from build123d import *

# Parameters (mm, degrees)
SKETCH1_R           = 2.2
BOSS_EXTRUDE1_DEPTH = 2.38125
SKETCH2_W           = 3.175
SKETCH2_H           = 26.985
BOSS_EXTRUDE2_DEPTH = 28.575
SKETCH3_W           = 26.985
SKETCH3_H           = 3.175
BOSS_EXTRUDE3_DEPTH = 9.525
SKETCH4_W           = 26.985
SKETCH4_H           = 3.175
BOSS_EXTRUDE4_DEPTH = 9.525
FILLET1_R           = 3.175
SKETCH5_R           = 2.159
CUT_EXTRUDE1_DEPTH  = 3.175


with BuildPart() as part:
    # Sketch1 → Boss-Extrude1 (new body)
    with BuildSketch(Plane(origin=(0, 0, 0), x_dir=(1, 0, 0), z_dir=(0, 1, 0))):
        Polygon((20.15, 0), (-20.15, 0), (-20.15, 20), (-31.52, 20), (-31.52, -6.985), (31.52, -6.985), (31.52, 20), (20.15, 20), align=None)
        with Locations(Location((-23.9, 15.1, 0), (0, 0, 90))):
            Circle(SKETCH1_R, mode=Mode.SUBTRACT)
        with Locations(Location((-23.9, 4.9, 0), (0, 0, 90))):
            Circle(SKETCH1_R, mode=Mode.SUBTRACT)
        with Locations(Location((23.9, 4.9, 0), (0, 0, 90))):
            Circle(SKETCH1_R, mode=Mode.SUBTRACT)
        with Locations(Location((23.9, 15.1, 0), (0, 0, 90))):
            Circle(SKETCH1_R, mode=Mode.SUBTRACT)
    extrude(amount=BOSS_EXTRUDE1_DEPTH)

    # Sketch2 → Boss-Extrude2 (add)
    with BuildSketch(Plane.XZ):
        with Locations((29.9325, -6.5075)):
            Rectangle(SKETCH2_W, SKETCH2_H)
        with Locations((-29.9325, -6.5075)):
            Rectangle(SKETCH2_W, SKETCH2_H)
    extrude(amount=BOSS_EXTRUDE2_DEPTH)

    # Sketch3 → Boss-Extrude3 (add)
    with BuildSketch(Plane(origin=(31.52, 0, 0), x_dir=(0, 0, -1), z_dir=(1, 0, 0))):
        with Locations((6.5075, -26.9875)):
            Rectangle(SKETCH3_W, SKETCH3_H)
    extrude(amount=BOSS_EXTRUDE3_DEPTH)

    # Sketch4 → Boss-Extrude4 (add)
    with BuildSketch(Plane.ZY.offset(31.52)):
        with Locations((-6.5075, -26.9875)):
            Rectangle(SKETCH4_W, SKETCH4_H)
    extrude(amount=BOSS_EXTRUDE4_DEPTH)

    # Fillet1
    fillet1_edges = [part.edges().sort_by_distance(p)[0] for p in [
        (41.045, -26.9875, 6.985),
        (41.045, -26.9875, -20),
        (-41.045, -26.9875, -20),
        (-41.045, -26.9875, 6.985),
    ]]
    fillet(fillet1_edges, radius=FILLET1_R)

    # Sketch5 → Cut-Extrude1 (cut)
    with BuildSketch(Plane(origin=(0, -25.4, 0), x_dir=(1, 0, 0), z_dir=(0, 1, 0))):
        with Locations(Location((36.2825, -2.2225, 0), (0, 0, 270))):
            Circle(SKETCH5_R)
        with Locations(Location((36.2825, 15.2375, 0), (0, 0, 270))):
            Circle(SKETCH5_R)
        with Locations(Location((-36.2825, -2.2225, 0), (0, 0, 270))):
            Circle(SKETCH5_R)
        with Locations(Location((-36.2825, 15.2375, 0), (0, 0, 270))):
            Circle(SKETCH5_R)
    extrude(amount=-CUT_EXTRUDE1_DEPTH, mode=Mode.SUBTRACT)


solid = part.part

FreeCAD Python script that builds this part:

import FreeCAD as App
import Part
import Sketcher

V = App.Vector
Q = App.Units.Quantity


def edges_at(feature, points):
    """Names of the edges that pass closest to the given points."""
    edges = feature.Shape.Edges
    near = lambda p: min(range(len(edges)), key=lambda i: edges[i].distToShape(Part.Vertex(*p))[0])
    return sorted({f"Edge{near(p) + 1}" for p in points})

doc = App.newDocument("Part")
body = doc.addObject("PartDesign::Body", "Body")

sketch1 = body.newObject("Sketcher::SketchObject", "Sketch")
sketch1.AttachmentSupport = (doc.getObject("XZ_Plane"), [""])
sketch1.MapMode = "FlatFace"
sketch1.addGeometry(Part.LineSegment(V(20.15, 0, 0), V(-20.15, 0, 0)), False)
sketch1.addGeometry(Part.LineSegment(V(-20.15, 0, 0), V(-20.15, -20, 0)), False)
sketch1.addGeometry(Part.LineSegment(V(-20.15, -20, 0), V(-31.52, -20, 0)), False)
sketch1.addGeometry(Part.LineSegment(V(-31.52, -20, 0), V(-31.52, 6.985, 0)), False)
sketch1.addGeometry(Part.LineSegment(V(-31.52, 6.985, 0), V(31.52, 6.985, 0)), False)
sketch1.addGeometry(Part.LineSegment(V(31.52, 6.985, 0), V(31.52, -20, 0)), False)
sketch1.addGeometry(Part.LineSegment(V(31.52, -20, 0), V(20.15, -20, 0)), False)
sketch1.addGeometry(Part.LineSegment(V(20.15, -20, 0), V(20.15, 0, 0)), False)
sketch1.addGeometry(Part.Circle(V(-23.9, -4.9, 0), V(0, 0, 1), 2.2), False)
sketch1.addGeometry(Part.Circle(V(23.9, -4.9, 0), V(0, 0, 1), 2.2), False)
sketch1.addGeometry(Part.Circle(V(-23.9, -15.1, 0), V(0, 0, 1), 2.2), False)
sketch1.addGeometry(Part.Circle(V(23.9, -15.1, 0), V(0, 0, 1), 2.2), False)
sketch1.addConstraint(Sketcher.Constraint("Coincident", 0, 2, 1, 1))
sketch1.addConstraint(Sketcher.Constraint("Coincident", 1, 2, 2, 1))
sketch1.addConstraint(Sketcher.Constraint("Coincident", 2, 2, 3, 1))
sketch1.addConstraint(Sketcher.Constraint("Coincident", 3, 2, 4, 1))
sketch1.addConstraint(Sketcher.Constraint("Coincident", 4, 2, 5, 1))
sketch1.addConstraint(Sketcher.Constraint("Coincident", 5, 2, 6, 1))
sketch1.addConstraint(Sketcher.Constraint("Coincident", 6, 2, 7, 1))
sketch1.addConstraint(Sketcher.Constraint("Coincident", 7, 2, 0, 1))
sketch1.addConstraint(Sketcher.Constraint("Horizontal", 0))
sketch1.addConstraint(Sketcher.Constraint("Vertical", 1))
sketch1.addConstraint(Sketcher.Constraint("Horizontal", 2))
sketch1.addConstraint(Sketcher.Constraint("Vertical", 3))
sketch1.addConstraint(Sketcher.Constraint("Horizontal", 4))
sketch1.addConstraint(Sketcher.Constraint("Vertical", 5))
sketch1.addConstraint(Sketcher.Constraint("Horizontal", 6))
sketch1.addConstraint(Sketcher.Constraint("Vertical", 7))
sketch1.addConstraint(Sketcher.Constraint("Equal", 8, 9))
sketch1.addConstraint(Sketcher.Constraint("Equal", 9, 10))
sketch1.addConstraint(Sketcher.Constraint("Equal", 10, 11))
sketch1.addConstraint(Sketcher.Constraint("Symmetric", 0, 2, 7, 2, -1, 1))
sketch1.addConstraint(Sketcher.Constraint("Symmetric", 8, 3, 9, 3, -2))
sketch1.addConstraint(Sketcher.Constraint("Symmetric", 10, 3, 11, 3, -2))
sketch1.addConstraint(Sketcher.Constraint("Symmetric", 2, 2, 5, 2, -2))
sketch1.addConstraint(Sketcher.Constraint("Vertical", 8, 3, 10, 3))
sketch1.addConstraint(Sketcher.Constraint("DistanceX", 2, 2, 10, 3, Q("0.3 in")))
sketch1.addConstraint(Sketcher.Constraint("Diameter", 8, 4.4))
sketch1.addConstraint(Sketcher.Constraint("DistanceY", -1, 1, 3, 2, Q("0.275 in")))
sketch1.addConstraint(Sketcher.Constraint("DistanceX", 0, 2, 0, 1, 40.3))
sketch1.addConstraint(Sketcher.Constraint("DistanceX", 2, 2, 2, 1, 11.37))
sketch1.addConstraint(Sketcher.Constraint("DistanceY", 1, 2, 1, 1, 20.0))
sketch1.addConstraint(Sketcher.Constraint("DistanceY", 8, 3, -1, 1, 4.9))
sketch1.addConstraint(Sketcher.Constraint("DistanceY", 10, 3, -1, 1, 15.1))
pad1 = body.newObject("PartDesign::Pad", "Pad")
pad1.Profile = sketch1
pad1.Length = Q("0.09375 in")
pad1.Reversed = True

sketch2 = body.newObject("Sketcher::SketchObject", "Sketch001")
sketch2.AttachmentSupport = (doc.getObject("XZ_Plane"), [""])
sketch2.MapMode = "FlatFace"
sketch2.addGeometry(Part.LineSegment(V(28.345, 6.985, 0), V(28.345, -20, 0)), False)
sketch2.addGeometry(Part.LineSegment(V(28.345, -20, 0), V(31.52, -20, 0)), False)
sketch2.addGeometry(Part.LineSegment(V(31.52, -20, 0), V(31.52, 6.985, 0)), False)
sketch2.addGeometry(Part.LineSegment(V(31.52, 6.985, 0), V(28.345, 6.985, 0)), False)
sketch2.addGeometry(Part.LineSegment(V(-31.52, 6.985, 0), V(-31.52, -20, 0)), False)
sketch2.addGeometry(Part.LineSegment(V(-31.52, -20, 0), V(-28.345, -20, 0)), False)
sketch2.addGeometry(Part.LineSegment(V(-28.345, -20, 0), V(-28.345, 6.985, 0)), False)
sketch2.addGeometry(Part.LineSegment(V(-28.345, 6.985, 0), V(-31.52, 6.985, 0)), False)
sketch2.addConstraint(Sketcher.Constraint("Coincident", 0, 2, 1, 1))
sketch2.addConstraint(Sketcher.Constraint("Coincident", 1, 2, 2, 1))
sketch2.addConstraint(Sketcher.Constraint("Coincident", 2, 2, 3, 1))
sketch2.addConstraint(Sketcher.Constraint("Coincident", 3, 2, 0, 1))
sketch2.addConstraint(Sketcher.Constraint("Coincident", 4, 2, 5, 1))
sketch2.addConstraint(Sketcher.Constraint("Coincident", 5, 2, 6, 1))
sketch2.addConstraint(Sketcher.Constraint("Coincident", 6, 2, 7, 1))
sketch2.addConstraint(Sketcher.Constraint("Coincident", 7, 2, 4, 1))
sketch2.addConstraint(Sketcher.Constraint("Vertical", 0))
sketch2.addConstraint(Sketcher.Constraint("Horizontal", 1))
sketch2.addConstraint(Sketcher.Constraint("Vertical", 2))
sketch2.addConstraint(Sketcher.Constraint("Horizontal", 3))
sketch2.addConstraint(Sketcher.Constraint("Vertical", 4))
sketch2.addConstraint(Sketcher.Constraint("Horizontal", 5))
sketch2.addConstraint(Sketcher.Constraint("Vertical", 6))
sketch2.addConstraint(Sketcher.Constraint("Horizontal", 7))
sketch2.addConstraint(Sketcher.Constraint("Symmetric", 1, 2, 4, 2, -2))
sketch2.addConstraint(Sketcher.Constraint("Symmetric", 3, 2, 6, 2, -2))
sketch2.addConstraint(Sketcher.Constraint("DistanceX", 1, 1, 1, 2, Q("0.125 in")))
sketch2.addConstraint(Sketcher.Constraint("DistanceY", -1, 1, 2, 2, Q("0.275 in")))
sketch2.addConstraint(Sketcher.Constraint("DistanceY", 0, 2, 0, 1, 26.985))
sketch2.addConstraint(Sketcher.Constraint("DistanceX", -1, 1, 0, 2, 28.345))
pad2 = body.newObject("PartDesign::Pad", "Pad001")
pad2.Profile = sketch2
pad2.Length = Q("1.125 in")

sketch3 = body.newObject("Sketcher::SketchObject", "Sketch002")
sketch3.AttachmentSupport = (doc.getObject("YZ_Plane"), [""])
sketch3.MapMode = "FlatFace"
sketch3.AttachmentOffset = App.Placement(V(0, 0, 31.52), App.Rotation())
sketch3.addGeometry(Part.LineSegment(V(-25.4, 6.985, 0), V(-28.575, 6.985, 0)), False)
sketch3.addGeometry(Part.LineSegment(V(-28.575, 6.985, 0), V(-28.575, -20, 0)), False)
sketch3.addGeometry(Part.LineSegment(V(-28.575, -20, 0), V(-25.4, -20, 0)), False)
sketch3.addGeometry(Part.LineSegment(V(-25.4, -20, 0), V(-25.4, 6.985, 0)), False)
sketch3.addConstraint(Sketcher.Constraint("Coincident", 0, 2, 1, 1))
sketch3.addConstraint(Sketcher.Constraint("Coincident", 1, 2, 2, 1))
sketch3.addConstraint(Sketcher.Constraint("Coincident", 2, 2, 3, 1))
sketch3.addConstraint(Sketcher.Constraint("Coincident", 3, 2, 0, 1))
sketch3.addConstraint(Sketcher.Constraint("Horizontal", 0))
sketch3.addConstraint(Sketcher.Constraint("Vertical", 1))
sketch3.addConstraint(Sketcher.Constraint("Horizontal", 2))
sketch3.addConstraint(Sketcher.Constraint("Vertical", 3))
sketch3.addConstraint(Sketcher.Constraint("DistanceX", 2, 2, -1, 1, Q("1 in")))
sketch3.addConstraint(Sketcher.Constraint("DistanceX", 0, 2, 0, 1, Q("0.125 in")))
sketch3.addConstraint(Sketcher.Constraint("DistanceY", -1, 1, 0, 2, Q("0.275 in")))
sketch3.addConstraint(Sketcher.Constraint("DistanceY", 1, 2, 1, 1, 26.985))
pad3 = body.newObject("PartDesign::Pad", "Pad002")
pad3.Profile = sketch3
pad3.Length = Q("0.375 in")

sketch4 = body.newObject("Sketcher::SketchObject", "Sketch003")
sketch4.AttachmentSupport = (doc.getObject("YZ_Plane"), [""])
sketch4.MapMode = "FlatFace"
sketch4.AttachmentOffset = App.Placement(V(0, 0, -31.52), App.Rotation())
sketch4.addGeometry(Part.LineSegment(V(-25.4, -20, 0), V(-28.575, -20, 0)), False)
sketch4.addGeometry(Part.LineSegment(V(-28.575, -20, 0), V(-28.575, 6.985, 0)), False)
sketch4.addGeometry(Part.LineSegment(V(-28.575, 6.985, 0), V(-25.4, 6.985, 0)), False)
sketch4.addGeometry(Part.LineSegment(V(-25.4, 6.985, 0), V(-25.4, -20, 0)), False)
sketch4.addConstraint(Sketcher.Constraint("Coincident", 0, 2, 1, 1))
sketch4.addConstraint(Sketcher.Constraint("Coincident", 1, 2, 2, 1))
sketch4.addConstraint(Sketcher.Constraint("Coincident", 2, 2, 3, 1))
sketch4.addConstraint(Sketcher.Constraint("Coincident", 3, 2, 0, 1))
sketch4.addConstraint(Sketcher.Constraint("Horizontal", 0))
sketch4.addConstraint(Sketcher.Constraint("Vertical", 1))
sketch4.addConstraint(Sketcher.Constraint("Horizontal", 2))
sketch4.addConstraint(Sketcher.Constraint("Vertical", 3))
sketch4.addConstraint(Sketcher.Constraint("DistanceX", 2, 2, -1, 1, Q("1 in")))
sketch4.addConstraint(Sketcher.Constraint("DistanceX", 0, 2, 0, 1, Q("0.125 in")))
sketch4.addConstraint(Sketcher.Constraint("DistanceY", -1, 1, 1, 2, Q("0.275 in")))
sketch4.addConstraint(Sketcher.Constraint("DistanceY", 1, 1, 1, 2, 26.985))
pad4 = body.newObject("PartDesign::Pad", "Pad003")
pad4.Profile = sketch4
pad4.Length = Q("0.375 in")
pad4.Reversed = True
doc.recompute()

fillet = body.newObject("PartDesign::Fillet", "Fillet")
fillet.Base = (pad4, edges_at(pad4, [
    (41.045, -26.988, 6.985),
    (41.045, -26.988, -20),
    (-41.045, -26.988, -20),
    (-41.045, -26.988, 6.985),
]))
fillet.Radius = Q("0.125 in")

sketch5 = body.newObject("Sketcher::SketchObject", "Sketch004")
sketch5.AttachmentSupport = (doc.getObject("XZ_Plane"), [""])
sketch5.MapMode = "FlatFace"
sketch5.AttachmentOffset = App.Placement(V(0, 0, 1 * 25.4), App.Rotation())
sketch5.addGeometry(Part.Circle(V(36.2825, 2.2225, 0), V(0, 0, 1), 2.159), False)
sketch5.addGeometry(Part.Circle(V(36.2825, -15.2375, 0), V(0, 0, 1), 2.159), False)
sketch5.addGeometry(Part.Circle(V(-36.2825, 2.2225, 0), V(0, 0, 1), 2.159), False)
sketch5.addGeometry(Part.Circle(V(-36.2825, -15.2375, 0), V(0, 0, 1), 2.159), False)
sketch5.addConstraint(Sketcher.Constraint("Equal", 0, 1))
sketch5.addConstraint(Sketcher.Constraint("Equal", 1, 2))
sketch5.addConstraint(Sketcher.Constraint("Equal", 2, 3))
sketch5.addConstraint(Sketcher.Constraint("Symmetric", 0, 3, 2, 3, -2))
sketch5.addConstraint(Sketcher.Constraint("Symmetric", 1, 3, 3, 3, -2))
sketch5.addConstraint(Sketcher.Constraint("Vertical", 0, 3, 1, 3))
sketch5.addConstraint(Sketcher.Constraint("Diameter", 0, Q("0.17 in")))
sketch5.addConstraint(Sketcher.Constraint("DistanceY", -1, 1, 0, 3, Q("0.0875 in")))
sketch5.addConstraint(Sketcher.Constraint("DistanceX", -1, 1, 0, 3, 36.2825))
sketch5.addConstraint(Sketcher.Constraint("DistanceY", 1, 3, -1, 1, 15.2375))
pocket1 = body.newObject("PartDesign::Pocket", "Pocket")
pocket1.Profile = sketch5
pocket1.Length = Q("0.125 in")
pocket1.Reversed = True

doc.recompute()
